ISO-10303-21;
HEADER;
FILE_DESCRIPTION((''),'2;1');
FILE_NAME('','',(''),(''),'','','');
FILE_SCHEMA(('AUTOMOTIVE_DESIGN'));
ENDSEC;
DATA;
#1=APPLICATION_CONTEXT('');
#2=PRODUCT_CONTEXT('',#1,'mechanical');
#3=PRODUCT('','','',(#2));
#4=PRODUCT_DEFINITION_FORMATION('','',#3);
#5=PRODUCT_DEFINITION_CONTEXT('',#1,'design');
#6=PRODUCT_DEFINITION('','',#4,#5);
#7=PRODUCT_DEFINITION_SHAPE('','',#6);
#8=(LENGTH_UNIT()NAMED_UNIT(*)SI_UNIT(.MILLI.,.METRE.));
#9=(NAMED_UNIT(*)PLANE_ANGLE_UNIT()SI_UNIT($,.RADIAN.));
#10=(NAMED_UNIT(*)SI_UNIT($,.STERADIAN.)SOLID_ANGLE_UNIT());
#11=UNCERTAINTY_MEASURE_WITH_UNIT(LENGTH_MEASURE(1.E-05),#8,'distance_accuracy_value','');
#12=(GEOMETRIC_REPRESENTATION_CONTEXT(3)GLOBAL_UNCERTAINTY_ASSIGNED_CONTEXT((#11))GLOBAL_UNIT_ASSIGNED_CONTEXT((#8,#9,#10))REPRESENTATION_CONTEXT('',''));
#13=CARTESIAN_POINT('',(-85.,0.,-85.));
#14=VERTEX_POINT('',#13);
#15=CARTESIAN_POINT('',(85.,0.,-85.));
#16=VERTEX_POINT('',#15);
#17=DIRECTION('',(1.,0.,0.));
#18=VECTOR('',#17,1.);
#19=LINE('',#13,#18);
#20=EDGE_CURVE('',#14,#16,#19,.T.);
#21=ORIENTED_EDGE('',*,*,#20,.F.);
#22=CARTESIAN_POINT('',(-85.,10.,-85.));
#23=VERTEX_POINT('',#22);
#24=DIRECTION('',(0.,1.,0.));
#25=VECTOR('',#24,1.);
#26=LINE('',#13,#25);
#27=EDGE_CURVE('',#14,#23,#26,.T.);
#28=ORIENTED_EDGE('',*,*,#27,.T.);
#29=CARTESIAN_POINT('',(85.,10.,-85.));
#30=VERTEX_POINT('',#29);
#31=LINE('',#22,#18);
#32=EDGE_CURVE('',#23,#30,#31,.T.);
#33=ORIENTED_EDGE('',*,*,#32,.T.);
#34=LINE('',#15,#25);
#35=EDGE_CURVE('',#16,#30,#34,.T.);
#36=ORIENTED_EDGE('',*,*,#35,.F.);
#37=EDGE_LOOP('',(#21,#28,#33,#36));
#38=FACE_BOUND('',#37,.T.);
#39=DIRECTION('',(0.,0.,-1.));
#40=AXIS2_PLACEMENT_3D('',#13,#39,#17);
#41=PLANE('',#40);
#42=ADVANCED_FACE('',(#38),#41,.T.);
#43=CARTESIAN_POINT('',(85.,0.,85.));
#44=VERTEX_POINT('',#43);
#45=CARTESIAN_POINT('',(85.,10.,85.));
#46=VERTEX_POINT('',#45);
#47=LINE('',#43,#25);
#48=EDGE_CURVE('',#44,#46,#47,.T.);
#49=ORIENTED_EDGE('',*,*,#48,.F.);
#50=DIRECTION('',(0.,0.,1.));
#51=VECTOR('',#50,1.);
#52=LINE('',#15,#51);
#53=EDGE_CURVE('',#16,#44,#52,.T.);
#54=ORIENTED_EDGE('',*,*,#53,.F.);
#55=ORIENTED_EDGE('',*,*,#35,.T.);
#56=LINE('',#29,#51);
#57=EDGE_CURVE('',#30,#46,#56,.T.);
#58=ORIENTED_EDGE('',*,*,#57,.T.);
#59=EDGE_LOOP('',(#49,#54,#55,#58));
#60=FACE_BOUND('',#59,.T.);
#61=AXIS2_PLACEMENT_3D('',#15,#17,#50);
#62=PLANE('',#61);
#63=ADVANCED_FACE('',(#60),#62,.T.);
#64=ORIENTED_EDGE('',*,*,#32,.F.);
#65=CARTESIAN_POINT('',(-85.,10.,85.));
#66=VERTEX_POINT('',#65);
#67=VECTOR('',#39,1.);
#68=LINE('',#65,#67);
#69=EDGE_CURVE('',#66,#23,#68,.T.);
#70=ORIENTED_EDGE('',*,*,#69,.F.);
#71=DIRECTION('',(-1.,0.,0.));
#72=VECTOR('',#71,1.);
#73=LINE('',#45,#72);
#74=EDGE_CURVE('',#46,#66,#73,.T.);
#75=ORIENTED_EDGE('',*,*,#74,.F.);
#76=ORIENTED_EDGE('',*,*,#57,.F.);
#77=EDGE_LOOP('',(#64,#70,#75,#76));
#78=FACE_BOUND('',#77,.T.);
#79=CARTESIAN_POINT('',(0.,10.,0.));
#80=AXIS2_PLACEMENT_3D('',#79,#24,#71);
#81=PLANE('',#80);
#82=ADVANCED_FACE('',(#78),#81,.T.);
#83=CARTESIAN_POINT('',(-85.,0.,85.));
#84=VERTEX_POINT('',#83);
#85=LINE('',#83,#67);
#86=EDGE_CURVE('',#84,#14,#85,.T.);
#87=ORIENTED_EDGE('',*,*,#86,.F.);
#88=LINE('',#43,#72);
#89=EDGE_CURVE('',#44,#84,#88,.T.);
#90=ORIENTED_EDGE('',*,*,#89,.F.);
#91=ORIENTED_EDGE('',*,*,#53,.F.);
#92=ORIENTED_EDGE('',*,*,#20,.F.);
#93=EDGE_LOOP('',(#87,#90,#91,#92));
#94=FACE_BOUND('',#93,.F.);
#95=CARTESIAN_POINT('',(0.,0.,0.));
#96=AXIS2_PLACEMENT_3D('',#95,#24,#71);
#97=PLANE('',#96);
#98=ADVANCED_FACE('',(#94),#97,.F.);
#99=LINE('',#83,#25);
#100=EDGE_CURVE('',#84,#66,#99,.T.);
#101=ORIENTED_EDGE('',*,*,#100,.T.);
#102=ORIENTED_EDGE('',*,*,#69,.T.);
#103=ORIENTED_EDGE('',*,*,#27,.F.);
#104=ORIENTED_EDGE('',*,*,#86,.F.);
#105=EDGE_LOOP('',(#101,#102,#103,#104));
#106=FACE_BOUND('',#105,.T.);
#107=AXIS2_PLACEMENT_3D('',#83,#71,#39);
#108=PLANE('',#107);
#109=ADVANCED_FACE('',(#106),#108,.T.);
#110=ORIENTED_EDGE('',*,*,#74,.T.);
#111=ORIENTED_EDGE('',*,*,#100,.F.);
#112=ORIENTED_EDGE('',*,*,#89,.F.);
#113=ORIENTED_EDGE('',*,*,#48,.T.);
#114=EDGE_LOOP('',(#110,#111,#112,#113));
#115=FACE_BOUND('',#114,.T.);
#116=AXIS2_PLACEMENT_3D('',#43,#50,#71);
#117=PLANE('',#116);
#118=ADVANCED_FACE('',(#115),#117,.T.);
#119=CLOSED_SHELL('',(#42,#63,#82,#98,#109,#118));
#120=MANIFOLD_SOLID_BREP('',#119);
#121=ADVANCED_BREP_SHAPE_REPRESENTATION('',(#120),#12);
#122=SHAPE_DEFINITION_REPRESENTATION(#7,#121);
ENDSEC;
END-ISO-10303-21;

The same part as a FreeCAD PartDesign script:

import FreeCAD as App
import Part
import Sketcher
from FreeCAD import Vector


def add_polygon(sketch, points):
    """Adds a closed chain of lines whose ends are joined by coincident constraints."""
    first, n = sketch.GeometryCount, len(points)
    for a, b in zip(points, points[1:] + points[:1]):
        sketch.addGeometry(Part.LineSegment(App.Vector(*a, 0), App.Vector(*b, 0)), False)
    for i in range(n):
        sketch.addConstraint(Sketcher.Constraint("Coincident", first + i, 2, first + (i + 1) % n, 1))

doc = App.newDocument("Part")
params = doc.addObject("Spreadsheet::Sheet", "Params")
for row, (alias, value) in enumerate([
    ("sketch1_width", "170 mm"),
    ("pad1_length", "10 mm"),
], start=1):
    params.set(f"A{row}", alias)
    params.set(f"B{row}", "=" + value)
    params.setAlias(f"B{row}", alias)

body = doc.addObject("PartDesign::Body", "Body")

# Sketch on XZ plane
sketch1 = body.newObject("Sketcher::SketchObject", "Sketch")
sketch1.AttachmentSupport = (doc.getObject("XZ_Plane"), [""])
sketch1.MapMode = "FlatFace"
add_polygon(sketch1, [(-85, 85), (85, 85), (85, -85), (-85, -85)])  # lines 0-3
sketch1.addConstraint([
    Sketcher.Constraint("Horizontal", 0),
    Sketcher.Constraint("Vertical", 1),
    Sketcher.Constraint("Horizontal", 2),
    Sketcher.Constraint("Vertical", 3),
    Sketcher.Constraint("Symmetric", 0, 2, 2, 2, -1, 1),
    Sketcher.Constraint("Equal", 2, 1),
    Sketcher.Constraint("DistanceX", 0, 1, 0, 2, 170.0),
])
sketch1.setExpression("Constraints[10]", "Params.sketch1_width")
pad1 = body.newObject("PartDesign::Pad", "Pad")
pad1.Profile = sketch1
pad1.setExpression("Length", "Params.pad1_length")
pad1.Reversed = True

doc.recompute()
